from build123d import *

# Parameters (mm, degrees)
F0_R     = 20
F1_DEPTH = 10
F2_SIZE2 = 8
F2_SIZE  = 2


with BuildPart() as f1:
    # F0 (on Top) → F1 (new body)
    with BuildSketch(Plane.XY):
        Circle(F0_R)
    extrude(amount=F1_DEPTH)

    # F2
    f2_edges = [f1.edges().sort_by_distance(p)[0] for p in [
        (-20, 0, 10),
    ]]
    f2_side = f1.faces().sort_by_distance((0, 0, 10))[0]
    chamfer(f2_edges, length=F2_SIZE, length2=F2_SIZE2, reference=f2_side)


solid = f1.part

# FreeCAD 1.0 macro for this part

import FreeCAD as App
import Part
import Sketcher

V = App.Vector


def edges_at(feature, points):
    """Names of the edges that pass closest to the given points."""
    edges = feature.Shape.Edges
    near = lambda p: min(range(len(edges)), key=lambda i: edges[i].distToShape(Part.Vertex(*p))[0])
    return sorted({f"Edge{near(p) + 1}" for p in points})

doc = App.newDocument("Part")
body = doc.addObject("PartDesign::Body", "Body")

# Sketch on XY plane
sketch1 = body.newObject("Sketcher::SketchObject", "Sketch")
sketch1.AttachmentSupport = (doc.getObject("XY_Plane"), [""])
sketch1.MapMode = "FlatFace"
sketch1.addGeometry(Part.Circle(V(0, 0, 0), V(0, 0, 1), 20), False)
sketch1.addConstraint([
    Sketcher.Constraint("Coincident", 0, 3, -1, 1),
    Sketcher.Constraint("Diameter", 0, 40.0),
])
pad1 = body.newObject("PartDesign::Pad", "Pad")
pad1.Profile = sketch1
pad1.Length = 10
doc.recompute()

chamfer = body.newObject("PartDesign::Chamfer", "Chamfer")
chamfer.Base = (pad1, edges_at(pad1, [(-20, 0, 10)]))
chamfer.ChamferType = "Two distances"
chamfer.Size = 2
chamfer.Size2 = 8
chamfer.FlipDirection = True

doc.recompute()
